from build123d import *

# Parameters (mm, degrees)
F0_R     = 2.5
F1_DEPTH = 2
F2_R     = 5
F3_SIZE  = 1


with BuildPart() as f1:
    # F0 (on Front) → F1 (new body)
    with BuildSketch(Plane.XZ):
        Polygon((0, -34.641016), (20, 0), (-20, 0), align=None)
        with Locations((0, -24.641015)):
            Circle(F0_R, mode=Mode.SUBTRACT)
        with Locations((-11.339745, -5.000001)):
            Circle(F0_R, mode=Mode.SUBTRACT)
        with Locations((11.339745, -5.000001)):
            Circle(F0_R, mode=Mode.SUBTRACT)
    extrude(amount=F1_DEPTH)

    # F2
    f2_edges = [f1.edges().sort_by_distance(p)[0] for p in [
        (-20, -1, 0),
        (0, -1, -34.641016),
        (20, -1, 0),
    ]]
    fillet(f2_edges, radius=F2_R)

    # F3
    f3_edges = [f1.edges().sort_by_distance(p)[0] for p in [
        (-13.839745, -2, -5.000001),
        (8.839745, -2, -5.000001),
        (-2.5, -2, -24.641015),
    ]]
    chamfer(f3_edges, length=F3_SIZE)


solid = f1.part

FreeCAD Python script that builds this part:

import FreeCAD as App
import Part
import Sketcher

V = App.Vector
Q = App.Units.Quantity


def edges_at(feature, points):
    """Names of the edges that pass closest to the given points."""
    edges = feature.Shape.Edges
    near = lambda p: min(range(len(edges)), key=lambda i: edges[i].distToShape(Part.Vertex(*p))[0])
    return sorted({f"Edge{near(p) + 1}" for p in points})


def add_polygon(sketch, points):
    """Adds a closed chain of lines whose ends are joined by coincident constraints."""
    first, n = sketch.GeometryCount, len(points)
    for a, b in zip(points, points[1:] + points[:1]):
        sketch.addGeometry(Part.LineSegment(App.Vector(*a, 0), App.Vector(*b, 0)), False)
    for i in range(n):
        sketch.addConstraint(Sketcher.Constraint("Coincident", first + i, 2, first + (i + 1) % n, 1))

doc = App.newDocument("Part")
body = doc.addObject("PartDesign::Body", "Body")

# Sketch on XZ plane
sketch1 = body.newObject("Sketcher::SketchObject", "Sketch")
sketch1.AttachmentSupport = (doc.getObject("XZ_Plane"), [""])
sketch1.MapMode = "FlatFace"
add_polygon(sketch1, [(0, -34.6), (20, 0), (-20, 0)])  # lines 0-2
sketch1.addGeometry(Part.Circle(V(0, -24.6, 0), V(0, 0, 1), 2.5), False)  # 3
sketch1.addGeometry(Part.Circle(V(-11.3, -5, 0), V(0, 0, 1), 2.5), False)  # 4
sketch1.addGeometry(Part.Circle(V(11.3, -5, 0), V(0, 0, 1), 2.5), False)  # 5
sketch1.addConstraint(Sketcher.Constraint("Horizontal", 1))
sketch1.addConstraint(Sketcher.Constraint("Equal", 3, 4))
sketch1.addConstraint(Sketcher.Constraint("Equal", 4, 5))
sketch1.addConstraint(Sketcher.Constraint("Symmetric", 0, 2, 1, 2, -1, 1))
sketch1.addConstraint(Sketcher.Constraint("Symmetric", 4, 3, 5, 3, -2))
sketch1.addConstraint(Sketcher.Constraint("PointOnObject", 3, 3, -2))
sketch1.addConstraint(Sketcher.Constraint("PointOnObject", 2, 2, -2))
sketch1.addConstraint(Sketcher.Constraint("Diameter", 3, 5.0))
sketch1.addConstraint(Sketcher.Constraint("DistanceX", 1, 2, 1, 1, 40.0))
sketch1.addConstraint(Sketcher.Constraint("Angle", 0, Q("60 deg")))
sketch1.addConstraint(Sketcher.Constraint("DistanceY", 4, 3, -1, 1, 5.000001))
sketch1.addConstraint(Sketcher.Constraint("DistanceY", 2, 2, 3, 3, 10.000001))
sketch1.addConstraint(Sketcher.Constraint("DistanceX", 4, 3, 5, 3, 22.67949))
pad1 = body.newObject("PartDesign::Pad", "Pad")
pad1.Profile = sketch1
pad1.Length = 2
doc.recompute()

fillet = body.newObject("PartDesign::Fillet", "Fillet")
fillet.Base = (pad1, edges_at(pad1, [(-20, -1, 0), (0, -1, -34.641), (20, -1, 0)]))
fillet.Radius = 5
doc.recompute()

chamfer = body.newObject("PartDesign::Chamfer", "Chamfer")
chamfer.Base = (fillet, edges_at(fillet, [(-13.84, -2, -5), (8.84, -2, -5), (-2.5, -2, -24.641)]))
chamfer.Size = 1

doc.recompute()
